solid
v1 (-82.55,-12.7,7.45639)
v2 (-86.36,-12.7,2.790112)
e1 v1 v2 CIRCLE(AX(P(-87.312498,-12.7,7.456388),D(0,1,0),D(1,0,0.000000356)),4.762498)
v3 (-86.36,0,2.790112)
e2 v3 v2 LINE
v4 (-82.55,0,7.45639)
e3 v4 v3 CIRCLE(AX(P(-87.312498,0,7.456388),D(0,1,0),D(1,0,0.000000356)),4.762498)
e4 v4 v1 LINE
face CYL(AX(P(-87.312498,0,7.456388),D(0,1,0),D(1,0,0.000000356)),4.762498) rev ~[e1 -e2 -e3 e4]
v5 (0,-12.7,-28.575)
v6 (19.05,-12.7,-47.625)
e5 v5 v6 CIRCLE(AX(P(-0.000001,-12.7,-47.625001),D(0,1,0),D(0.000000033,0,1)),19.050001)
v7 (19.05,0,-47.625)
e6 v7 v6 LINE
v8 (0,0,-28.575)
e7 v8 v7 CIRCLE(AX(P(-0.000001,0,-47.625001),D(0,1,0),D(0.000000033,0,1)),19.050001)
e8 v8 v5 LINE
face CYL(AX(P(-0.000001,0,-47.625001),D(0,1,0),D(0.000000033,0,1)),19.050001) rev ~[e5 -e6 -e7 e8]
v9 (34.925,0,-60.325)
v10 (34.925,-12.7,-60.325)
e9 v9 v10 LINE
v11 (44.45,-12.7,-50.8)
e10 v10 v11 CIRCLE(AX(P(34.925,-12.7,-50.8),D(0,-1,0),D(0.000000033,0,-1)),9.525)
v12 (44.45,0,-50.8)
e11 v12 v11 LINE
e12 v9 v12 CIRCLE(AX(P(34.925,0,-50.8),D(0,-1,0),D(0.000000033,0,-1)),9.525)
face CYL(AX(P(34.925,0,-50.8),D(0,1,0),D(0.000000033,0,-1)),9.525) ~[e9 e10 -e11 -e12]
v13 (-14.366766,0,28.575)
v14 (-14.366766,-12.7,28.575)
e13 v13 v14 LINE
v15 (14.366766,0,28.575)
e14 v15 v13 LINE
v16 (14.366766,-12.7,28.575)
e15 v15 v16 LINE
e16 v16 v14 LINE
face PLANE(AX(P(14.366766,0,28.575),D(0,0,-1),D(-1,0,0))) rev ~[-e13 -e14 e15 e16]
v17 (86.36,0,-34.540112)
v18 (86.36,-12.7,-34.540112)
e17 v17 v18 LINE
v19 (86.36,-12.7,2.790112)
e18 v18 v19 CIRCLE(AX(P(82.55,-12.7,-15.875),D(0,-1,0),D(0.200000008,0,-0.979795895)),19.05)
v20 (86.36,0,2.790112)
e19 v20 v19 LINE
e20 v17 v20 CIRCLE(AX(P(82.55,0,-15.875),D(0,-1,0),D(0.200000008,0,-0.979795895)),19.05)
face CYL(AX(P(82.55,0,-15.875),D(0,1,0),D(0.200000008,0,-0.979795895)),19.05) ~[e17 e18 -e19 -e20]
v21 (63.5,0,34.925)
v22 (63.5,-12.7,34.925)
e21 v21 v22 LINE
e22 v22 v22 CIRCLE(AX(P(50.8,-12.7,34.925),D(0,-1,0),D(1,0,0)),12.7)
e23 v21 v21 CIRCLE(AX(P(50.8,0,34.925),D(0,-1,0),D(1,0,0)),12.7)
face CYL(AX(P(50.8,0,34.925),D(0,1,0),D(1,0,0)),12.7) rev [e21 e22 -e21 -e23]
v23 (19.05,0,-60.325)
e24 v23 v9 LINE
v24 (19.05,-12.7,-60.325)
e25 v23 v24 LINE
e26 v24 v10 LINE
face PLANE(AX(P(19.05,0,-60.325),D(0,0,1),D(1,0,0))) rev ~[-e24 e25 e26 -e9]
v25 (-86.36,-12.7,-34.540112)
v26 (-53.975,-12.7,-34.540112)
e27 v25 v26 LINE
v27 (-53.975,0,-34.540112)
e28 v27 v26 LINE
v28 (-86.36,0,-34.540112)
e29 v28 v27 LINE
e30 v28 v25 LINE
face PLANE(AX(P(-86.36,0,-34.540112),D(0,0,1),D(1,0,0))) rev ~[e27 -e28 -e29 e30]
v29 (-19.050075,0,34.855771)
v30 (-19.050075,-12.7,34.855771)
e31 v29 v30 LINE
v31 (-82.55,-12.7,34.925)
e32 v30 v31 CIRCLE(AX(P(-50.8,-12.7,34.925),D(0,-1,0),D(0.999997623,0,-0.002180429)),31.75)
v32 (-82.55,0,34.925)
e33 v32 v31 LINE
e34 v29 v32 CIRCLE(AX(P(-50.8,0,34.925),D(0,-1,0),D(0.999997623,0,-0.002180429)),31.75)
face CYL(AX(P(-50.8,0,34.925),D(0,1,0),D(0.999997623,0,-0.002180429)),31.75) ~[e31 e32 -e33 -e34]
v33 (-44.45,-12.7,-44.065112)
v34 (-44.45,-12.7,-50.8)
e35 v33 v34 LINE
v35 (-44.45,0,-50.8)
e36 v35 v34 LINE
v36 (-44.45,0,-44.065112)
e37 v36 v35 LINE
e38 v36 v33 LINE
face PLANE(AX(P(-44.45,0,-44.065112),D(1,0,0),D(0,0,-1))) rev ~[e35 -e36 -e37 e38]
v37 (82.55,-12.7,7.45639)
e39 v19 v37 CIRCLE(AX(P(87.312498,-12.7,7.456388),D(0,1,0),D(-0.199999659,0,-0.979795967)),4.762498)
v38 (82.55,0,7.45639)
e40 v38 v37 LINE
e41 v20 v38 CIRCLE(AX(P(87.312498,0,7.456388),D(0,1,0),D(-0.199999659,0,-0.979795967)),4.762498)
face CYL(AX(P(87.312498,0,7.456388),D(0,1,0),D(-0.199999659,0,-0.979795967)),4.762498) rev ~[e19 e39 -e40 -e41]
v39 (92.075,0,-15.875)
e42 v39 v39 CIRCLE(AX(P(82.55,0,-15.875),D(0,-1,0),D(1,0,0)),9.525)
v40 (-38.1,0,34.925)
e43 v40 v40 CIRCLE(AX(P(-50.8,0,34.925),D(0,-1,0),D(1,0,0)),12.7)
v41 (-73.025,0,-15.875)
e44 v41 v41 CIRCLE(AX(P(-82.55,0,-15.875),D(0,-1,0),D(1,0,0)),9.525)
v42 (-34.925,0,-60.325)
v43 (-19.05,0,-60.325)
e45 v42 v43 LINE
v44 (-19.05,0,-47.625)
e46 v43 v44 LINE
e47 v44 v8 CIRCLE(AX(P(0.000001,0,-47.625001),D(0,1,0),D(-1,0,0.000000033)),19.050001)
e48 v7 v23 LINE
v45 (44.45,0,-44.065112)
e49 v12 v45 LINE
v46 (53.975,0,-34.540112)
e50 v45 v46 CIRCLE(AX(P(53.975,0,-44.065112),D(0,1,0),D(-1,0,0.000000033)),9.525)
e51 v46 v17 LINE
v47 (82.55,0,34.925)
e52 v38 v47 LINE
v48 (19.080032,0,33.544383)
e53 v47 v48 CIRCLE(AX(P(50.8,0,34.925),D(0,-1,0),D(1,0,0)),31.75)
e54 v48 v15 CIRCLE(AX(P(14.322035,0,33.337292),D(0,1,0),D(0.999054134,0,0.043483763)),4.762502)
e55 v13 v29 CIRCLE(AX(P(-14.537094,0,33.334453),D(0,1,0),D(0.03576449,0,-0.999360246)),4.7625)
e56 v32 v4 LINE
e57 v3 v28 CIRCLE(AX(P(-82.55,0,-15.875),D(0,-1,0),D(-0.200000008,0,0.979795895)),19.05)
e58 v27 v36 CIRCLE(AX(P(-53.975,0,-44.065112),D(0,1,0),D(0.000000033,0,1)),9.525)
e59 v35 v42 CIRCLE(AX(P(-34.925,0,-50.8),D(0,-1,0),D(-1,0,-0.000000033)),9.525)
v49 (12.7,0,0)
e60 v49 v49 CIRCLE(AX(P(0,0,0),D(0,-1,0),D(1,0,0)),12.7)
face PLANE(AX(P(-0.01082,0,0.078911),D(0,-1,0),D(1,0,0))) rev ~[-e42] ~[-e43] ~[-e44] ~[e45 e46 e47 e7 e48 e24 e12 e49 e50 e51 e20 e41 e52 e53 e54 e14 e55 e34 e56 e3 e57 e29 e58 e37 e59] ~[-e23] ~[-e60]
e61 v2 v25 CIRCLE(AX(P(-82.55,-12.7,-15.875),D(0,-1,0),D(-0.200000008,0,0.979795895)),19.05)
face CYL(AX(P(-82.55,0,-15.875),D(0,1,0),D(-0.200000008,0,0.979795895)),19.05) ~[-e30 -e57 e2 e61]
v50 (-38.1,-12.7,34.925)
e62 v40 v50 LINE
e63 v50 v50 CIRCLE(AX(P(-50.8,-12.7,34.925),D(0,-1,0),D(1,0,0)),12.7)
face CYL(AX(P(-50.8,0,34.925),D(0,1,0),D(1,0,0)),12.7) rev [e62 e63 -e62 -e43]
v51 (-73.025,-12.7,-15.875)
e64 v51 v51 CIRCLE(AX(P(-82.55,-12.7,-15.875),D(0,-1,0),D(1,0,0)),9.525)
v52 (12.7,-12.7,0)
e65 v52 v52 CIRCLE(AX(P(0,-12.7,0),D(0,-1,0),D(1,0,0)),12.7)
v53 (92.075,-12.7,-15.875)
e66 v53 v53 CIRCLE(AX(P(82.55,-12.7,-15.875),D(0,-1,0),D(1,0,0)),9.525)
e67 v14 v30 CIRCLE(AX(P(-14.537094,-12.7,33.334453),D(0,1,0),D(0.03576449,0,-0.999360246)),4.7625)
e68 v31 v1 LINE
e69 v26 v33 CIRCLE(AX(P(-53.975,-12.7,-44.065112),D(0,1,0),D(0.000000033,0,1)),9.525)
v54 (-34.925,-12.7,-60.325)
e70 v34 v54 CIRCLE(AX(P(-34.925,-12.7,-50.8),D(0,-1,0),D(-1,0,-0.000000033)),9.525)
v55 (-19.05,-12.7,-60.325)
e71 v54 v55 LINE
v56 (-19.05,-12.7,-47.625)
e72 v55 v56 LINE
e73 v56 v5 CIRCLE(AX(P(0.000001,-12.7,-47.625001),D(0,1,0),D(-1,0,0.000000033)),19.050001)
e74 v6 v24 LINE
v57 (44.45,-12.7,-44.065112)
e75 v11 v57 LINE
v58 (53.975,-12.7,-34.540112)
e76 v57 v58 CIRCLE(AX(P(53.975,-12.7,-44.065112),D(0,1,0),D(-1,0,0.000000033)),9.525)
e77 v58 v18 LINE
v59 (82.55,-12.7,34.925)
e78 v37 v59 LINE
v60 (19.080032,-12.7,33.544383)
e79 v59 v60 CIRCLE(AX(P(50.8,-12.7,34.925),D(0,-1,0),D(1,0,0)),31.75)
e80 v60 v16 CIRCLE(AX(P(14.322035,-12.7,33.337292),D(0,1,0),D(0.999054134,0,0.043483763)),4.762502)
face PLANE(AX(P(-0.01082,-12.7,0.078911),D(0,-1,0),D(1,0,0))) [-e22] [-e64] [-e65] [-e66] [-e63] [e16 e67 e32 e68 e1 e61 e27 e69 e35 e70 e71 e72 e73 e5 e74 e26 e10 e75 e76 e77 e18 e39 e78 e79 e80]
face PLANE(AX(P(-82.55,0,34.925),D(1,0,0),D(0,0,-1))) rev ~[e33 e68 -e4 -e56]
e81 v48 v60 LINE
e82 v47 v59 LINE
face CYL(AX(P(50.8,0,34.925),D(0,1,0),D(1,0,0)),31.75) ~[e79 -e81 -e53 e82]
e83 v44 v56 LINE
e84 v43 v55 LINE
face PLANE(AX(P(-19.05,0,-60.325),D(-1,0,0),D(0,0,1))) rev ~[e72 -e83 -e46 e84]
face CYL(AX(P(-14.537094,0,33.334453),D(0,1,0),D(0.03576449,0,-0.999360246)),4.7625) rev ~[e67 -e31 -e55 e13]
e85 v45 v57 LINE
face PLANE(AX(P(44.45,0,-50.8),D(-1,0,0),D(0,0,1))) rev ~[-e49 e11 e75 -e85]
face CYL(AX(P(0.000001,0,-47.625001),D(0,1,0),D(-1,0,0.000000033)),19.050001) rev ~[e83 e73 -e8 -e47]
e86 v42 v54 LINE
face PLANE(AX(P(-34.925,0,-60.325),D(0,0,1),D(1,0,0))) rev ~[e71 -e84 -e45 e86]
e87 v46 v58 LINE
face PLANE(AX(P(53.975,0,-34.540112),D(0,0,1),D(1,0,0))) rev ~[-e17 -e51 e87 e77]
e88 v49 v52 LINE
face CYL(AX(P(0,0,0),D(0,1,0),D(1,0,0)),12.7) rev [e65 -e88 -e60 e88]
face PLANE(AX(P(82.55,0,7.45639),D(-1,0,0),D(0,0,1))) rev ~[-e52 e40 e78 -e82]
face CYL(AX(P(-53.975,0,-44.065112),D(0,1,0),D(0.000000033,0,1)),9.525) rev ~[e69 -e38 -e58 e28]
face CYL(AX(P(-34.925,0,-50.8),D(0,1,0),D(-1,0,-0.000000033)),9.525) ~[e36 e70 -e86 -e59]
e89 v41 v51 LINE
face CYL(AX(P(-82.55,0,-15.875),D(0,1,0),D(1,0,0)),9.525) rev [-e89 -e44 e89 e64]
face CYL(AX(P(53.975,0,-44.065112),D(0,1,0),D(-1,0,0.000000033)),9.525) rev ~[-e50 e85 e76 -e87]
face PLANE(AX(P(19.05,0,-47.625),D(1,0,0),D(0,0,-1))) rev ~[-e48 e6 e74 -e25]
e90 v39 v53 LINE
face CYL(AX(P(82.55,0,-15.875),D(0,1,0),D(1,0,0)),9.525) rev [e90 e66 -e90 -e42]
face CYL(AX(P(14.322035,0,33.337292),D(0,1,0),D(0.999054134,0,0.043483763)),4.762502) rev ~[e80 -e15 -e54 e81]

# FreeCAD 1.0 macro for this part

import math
import FreeCAD as App
import Part
import Sketcher
from FreeCAD import Vector
Q = App.Units.Quantity

doc = App.newDocument("Part")
body = doc.addObject("PartDesign::Body", "Body")

# Sketch on XZ plane
sketch1 = body.newObject("Sketcher::SketchObject", "Sketch")
sketch1.AttachmentSupport = (doc.getObject("XZ_Plane"), [""])
sketch1.MapMode = "FlatFace"
sketch1.addGeometry(Part.ArcOfCircle(Part.Circle(Vector(14.3, 33.3, 0), Vector(0, 0, 1), 4.8), math.radians(-89), math.radians(2)), False)
sketch1.addGeometry(Part.LineSegment(Vector(14.4, 28.6, 0), Vector(-14.4, 28.6, 0)), False)
sketch1.addGeometry(Part.ArcOfCircle(Part.Circle(Vector(-14.5, 33.3, 0), Vector(0, 0, 1), 4.8), math.radians(161), math.radians(272)), False)
sketch1.addGeometry(Part.ArcOfCircle(Part.Circle(Vector(-50.8, 34.9, 0), Vector(0, 0, 1), 31.8), math.radians(0), math.radians(180)), False)
sketch1.addGeometry(Part.LineSegment(Vector(-82.5, 34.9, 0), Vector(-82.5, 7.5, 0)), False)
sketch1.addGeometry(Part.ArcOfCircle(Part.Circle(Vector(-87.3, 7.5, 0), Vector(0, 0, 1), 4.8), math.radians(-78), math.radians(0)), False)
sketch1.addGeometry(Part.ArcOfCircle(Part.Circle(Vector(-82.5, -15.9, 0), Vector(0, 0, 1), 19.1), math.radians(102), math.radians(258)), False)
sketch1.addGeometry(Part.LineSegment(Vector(-86.4, -34.5, 0), Vector(-54, -34.5, 0)), False)
sketch1.addGeometry(Part.ArcOfCircle(Part.Circle(Vector(-54, -44.1, 0), Vector(0, 0, 1), 9.5), math.radians(0), math.radians(90)), False)
sketch1.addGeometry(Part.LineSegment(Vector(-44.5, -44.1, 0), Vector(-44.5, -50.8, 0)), False)
sketch1.addGeometry(Part.ArcOfCircle(Part.Circle(Vector(-34.9, -50.8, 0), Vector(0, 0, 1), 9.5), math.radians(-180), math.radians(-90)), False)
sketch1.addGeometry(Part.LineSegment(Vector(-34.9, -60.3, 0), Vector(-19.1, -60.3, 0)), False)
sketch1.addGeometry(Part.LineSegment(Vector(-19.1, -60.3, 0), Vector(-19.1, -47.6, 0)), False)
sketch1.addGeometry(Part.ArcOfCircle(Part.Circle(Vector(0, -47.6, 0), Vector(0, 0, 1), 19.1), math.radians(90), math.radians(180)), False)
sketch1.addGeometry(Part.ArcOfCircle(Part.Circle(Vector(0, -47.6, 0), Vector(0, 0, 1), 19.1), math.radians(0), math.radians(90)), False)
sketch1.addGeometry(Part.LineSegment(Vector(19.1, -47.6, 0), Vector(19.1, -60.3, 0)), False)
sketch1.addGeometry(Part.LineSegment(Vector(19.1, -60.3, 0), Vector(34.9, -60.3, 0)), False)
sketch1.addGeometry(Part.ArcOfCircle(Part.Circle(Vector(34.9, -50.8, 0), Vector(0, 0, 1), 9.5), math.radians(-90), math.radians(0)), False)
sketch1.addGeometry(Part.LineSegment(Vector(44.5, -50.8, 0), Vector(44.5, -44.1, 0)), False)
sketch1.addGeometry(Part.ArcOfCircle(Part.Circle(Vector(54, -44.1, 0), Vector(0, 0, 1), 9.5), math.radians(90), math.radians(180)), False)
sketch1.addGeometry(Part.LineSegment(Vector(54, -34.5, 0), Vector(86.4, -34.5, 0)), False)
sketch1.addGeometry(Part.ArcOfCircle(Part.Circle(Vector(82.5, -15.9, 0), Vector(0, 0, 1), 19.1), math.radians(-78), math.radians(78)), False)
sketch1.addGeometry(Part.ArcOfCircle(Part.Circle(Vector(87.3, 7.5, 0), Vector(0, 0, 1), 4.8), math.radians(180), math.radians(258)), False)
sketch1.addGeometry(Part.LineSegment(Vector(82.5, 7.5, 0), Vector(82.5, 34.9, 0)), False)
sketch1.addGeometry(Part.ArcOfCircle(Part.Circle(Vector(50.8, 34.9, 0), Vector(0, 0, 1), 31.7), math.radians(0), math.radians(182)), False)
sketch1.addGeometry(Part.Circle(Vector(-82.5, -15.9, 0), Vector(0, 0, 1), 9.5), False)
sketch1.addGeometry(Part.Circle(Vector(82.5, -15.9, 0), Vector(0, 0, 1), 9.5), False)
sketch1.addGeometry(Part.Circle(Vector(0, 0, 0), Vector(0, 0, 1), 12.7), False)
sketch1.addGeometry(Part.Circle(Vector(-50.8, 34.9, 0), Vector(0, 0, 1), 12.7), False)
sketch1.addGeometry(Part.Circle(Vector(50.8, 34.9, 0), Vector(0, 0, 1), 12.7), False)
sketch1.addConstraint(Sketcher.Constraint("Coincident", 0, 1, 1, 1))
sketch1.addConstraint(Sketcher.Constraint("Coincident", 1, 2, 2, 2))
sketch1.addConstraint(Sketcher.Constraint("Coincident", 2, 1, 3, 1))
sketch1.addConstraint(Sketcher.Constraint("Tangent", 3, 2, 4, 1))
sketch1.addConstraint(Sketcher.Constraint("Tangent", 4, 2, 5, 2))
sketch1.addConstraint(Sketcher.Constraint("Tangent", 5, 1, 6, 1))
sketch1.addConstraint(Sketcher.Constraint("Coincident", 6, 2, 7, 1))
sketch1.addConstraint(Sketcher.Constraint("Tangent", 7, 2, 8, 2))
sketch1.addConstraint(Sketcher.Constraint("Tangent", 8, 1, 9, 1))
sketch1.addConstraint(Sketcher.Constraint("Tangent", 9, 2, 10, 1))
sketch1.addConstraint(Sketcher.Constraint("Tangent", 10, 2, 11, 1))
sketch1.addConstraint(Sketcher.Constraint("Coincident", 11, 2, 12, 1))
sketch1.addConstraint(Sketcher.Constraint("Tangent", 12, 2, 13, 2))
sketch1.addConstraint(Sketcher.Constraint("Tangent", 13, 1, 14, 2))
sketch1.addConstraint(Sketcher.Constraint("Tangent", 14, 1, 15, 1))
sketch1.addConstraint(Sketcher.Constraint("Coincident", 15, 2, 16, 1))
sketch1.addConstraint(Sketcher.Constraint("Tangent", 16, 2, 17, 1))
sketch1.addConstraint(Sketcher.Constraint("Tangent", 17, 2, 18, 1))
sketch1.addConstraint(Sketcher.Constraint("Tangent", 18, 2, 19, 2))
sketch1.addConstraint(Sketcher.Constraint("Tangent", 19, 1, 20, 1))
sketch1.addConstraint(Sketcher.Constraint("Coincident", 20, 2, 21, 1))
sketch1.addConstraint(Sketcher.Constraint("Tangent", 21, 2, 22, 2))
sketch1.addConstraint(Sketcher.Constraint("Tangent", 22, 1, 23, 1))
sketch1.addConstraint(Sketcher.Constraint("Tangent", 23, 2, 24, 1))
sketch1.addConstraint(Sketcher.Constraint("Tangent", 24, 2, 0, 2))
sketch1.addConstraint(Sketcher.Constraint("Horizontal", 1))
sketch1.addConstraint(Sketcher.Constraint("Vertical", 4))
sketch1.addConstraint(Sketcher.Constraint("Horizontal", 7))
sketch1.addConstraint(Sketcher.Constraint("Vertical", 9))
sketch1.addConstraint(Sketcher.Constraint("Horizontal", 11))
sketch1.addConstraint(Sketcher.Constraint("Vertical", 12))
sketch1.addConstraint(Sketcher.Constraint("Vertical", 15))
sketch1.addConstraint(Sketcher.Constraint("Horizontal", 16))
sketch1.addConstraint(Sketcher.Constraint("Vertical", 18))
sketch1.addConstraint(Sketcher.Constraint("Horizontal", 20))
sketch1.addConstraint(Sketcher.Constraint("Vertical", 23))
sketch1.addConstraint(Sketcher.Constraint("Coincident", 27, 3, -1, 1))
sketch1.addConstraint(Sketcher.Constraint("Coincident", 25, 3, 6, 3))
sketch1.addConstraint(Sketcher.Constraint("Coincident", 26, 3, 21, 3))
sketch1.addConstraint(Sketcher.Constraint("Coincident", 28, 3, 3, 3))
sketch1.addConstraint(Sketcher.Constraint("Coincident", 29, 3, 24, 3))
sketch1.addConstraint(Sketcher.Constraint("Equal", 0, 2))
sketch1.addConstraint(Sketcher.Constraint("Equal", 2, 5))
sketch1.addConstraint(Sketcher.Constraint("Equal", 8, 10))
sketch1.addConstraint(Sketcher.Constraint("Equal", 6, 13))
sketch1.addConstraint(Sketcher.Constraint("Equal", 13, 14))
sketch1.addConstraint(Sketcher.Constraint("Equal", 10, 17))
sketch1.addConstraint(Sketcher.Constraint("Equal", 17, 19))
sketch1.addConstraint(Sketcher.Constraint("Equal", 14, 21))
sketch1.addConstraint(Sketcher.Constraint("Equal", 5, 22))
sketch1.addConstraint(Sketcher.Constraint("Equal", 3, 24))
sketch1.addConstraint(Sketcher.Constraint("Equal", 19, 25))
sketch1.addConstraint(Sketcher.Constraint("Equal", 25, 26))
sketch1.addConstraint(Sketcher.Constraint("Equal", 27, 28))
sketch1.addConstraint(Sketcher.Constraint("Equal", 28, 29))
sketch1.addConstraint(Sketcher.Constraint("Symmetric", 10, 3, 17, 3, -2))
sketch1.addConstraint(Sketcher.Constraint("Symmetric", 6, 3, 21, 3, -2))
sketch1.addConstraint(Sketcher.Constraint("Symmetric", 3, 3, 24, 3, -2))
sketch1.addConstraint(Sketcher.Constraint("PointOnObject", 13, 3, -2))
sketch1.addConstraint(Sketcher.Constraint("PointOnObject", 13, 1, -2))
sketch1.addConstraint(Sketcher.Constraint("Horizontal", 8, 3, 19, 3))
sketch1.addConstraint(Sketcher.Constraint("Vertical", 25, 3, 3, 2))
sketch1.addConstraint(Sketcher.Constraint("Vertical", 5, 1, 6, 2))
sketch1.addConstraint(Sketcher.Constraint("Diameter", 27, Q("1 in")))
sketch1.addConstraint(Sketcher.Constraint("Diameter", 25, Q("0.75 in")))
sketch1.addConstraint(Sketcher.Constraint("Radius", 3, Q("1.25 in")))
sketch1.addConstraint(Sketcher.Constraint("Radius", 6, Q("0.75 in")))
sketch1.addConstraint(Sketcher.Constraint("DistanceY", 12, 1, 12, 2, Q("0.5 in")))
sketch1.addConstraint(Sketcher.Constraint("DistanceX", 3, 3, -1, 1, Q("2 in")))
sketch1.addConstraint(Sketcher.Constraint("DistanceY", 10, 3, -1, 1, Q("2 in")))
sketch1.addConstraint(Sketcher.Constraint("Radius", 0, Q("0.1875001 in")))
sketch1.addConstraint(Sketcher.Constraint("DistanceY", 6, 3, 3, 3, Q("2 in")))
sketch1.addConstraint(Sketcher.Constraint("DistanceX", 9, 2, 11, 2, Q("1 in")))
sketch1.addConstraint(Sketcher.Constraint("DistanceY", 13, 3, 6, 3, Q("1.25 in")))
sketch1.addConstraint(Sketcher.Constraint("DistanceY", 0, 1, 29, 3, Q("0.25 in")))
sketch1.addConstraint(Sketcher.Constraint("DistanceX", 1, 2, 0, 3, Q("28.688801 mm")))
sketch1.addConstraint(Sketcher.Constraint("DistanceX", 1, 2, 1, 1, Q("28.733532 mm")))
sketch1.addConstraint(Sketcher.Constraint("DistanceY", -1, 1, 2, 1, Q("34.855771 mm")))
pad1 = body.newObject("PartDesign::Pad", "Pad")
pad1.Profile = sketch1
pad1.Length = Q("0.5 in")

doc.recompute()
